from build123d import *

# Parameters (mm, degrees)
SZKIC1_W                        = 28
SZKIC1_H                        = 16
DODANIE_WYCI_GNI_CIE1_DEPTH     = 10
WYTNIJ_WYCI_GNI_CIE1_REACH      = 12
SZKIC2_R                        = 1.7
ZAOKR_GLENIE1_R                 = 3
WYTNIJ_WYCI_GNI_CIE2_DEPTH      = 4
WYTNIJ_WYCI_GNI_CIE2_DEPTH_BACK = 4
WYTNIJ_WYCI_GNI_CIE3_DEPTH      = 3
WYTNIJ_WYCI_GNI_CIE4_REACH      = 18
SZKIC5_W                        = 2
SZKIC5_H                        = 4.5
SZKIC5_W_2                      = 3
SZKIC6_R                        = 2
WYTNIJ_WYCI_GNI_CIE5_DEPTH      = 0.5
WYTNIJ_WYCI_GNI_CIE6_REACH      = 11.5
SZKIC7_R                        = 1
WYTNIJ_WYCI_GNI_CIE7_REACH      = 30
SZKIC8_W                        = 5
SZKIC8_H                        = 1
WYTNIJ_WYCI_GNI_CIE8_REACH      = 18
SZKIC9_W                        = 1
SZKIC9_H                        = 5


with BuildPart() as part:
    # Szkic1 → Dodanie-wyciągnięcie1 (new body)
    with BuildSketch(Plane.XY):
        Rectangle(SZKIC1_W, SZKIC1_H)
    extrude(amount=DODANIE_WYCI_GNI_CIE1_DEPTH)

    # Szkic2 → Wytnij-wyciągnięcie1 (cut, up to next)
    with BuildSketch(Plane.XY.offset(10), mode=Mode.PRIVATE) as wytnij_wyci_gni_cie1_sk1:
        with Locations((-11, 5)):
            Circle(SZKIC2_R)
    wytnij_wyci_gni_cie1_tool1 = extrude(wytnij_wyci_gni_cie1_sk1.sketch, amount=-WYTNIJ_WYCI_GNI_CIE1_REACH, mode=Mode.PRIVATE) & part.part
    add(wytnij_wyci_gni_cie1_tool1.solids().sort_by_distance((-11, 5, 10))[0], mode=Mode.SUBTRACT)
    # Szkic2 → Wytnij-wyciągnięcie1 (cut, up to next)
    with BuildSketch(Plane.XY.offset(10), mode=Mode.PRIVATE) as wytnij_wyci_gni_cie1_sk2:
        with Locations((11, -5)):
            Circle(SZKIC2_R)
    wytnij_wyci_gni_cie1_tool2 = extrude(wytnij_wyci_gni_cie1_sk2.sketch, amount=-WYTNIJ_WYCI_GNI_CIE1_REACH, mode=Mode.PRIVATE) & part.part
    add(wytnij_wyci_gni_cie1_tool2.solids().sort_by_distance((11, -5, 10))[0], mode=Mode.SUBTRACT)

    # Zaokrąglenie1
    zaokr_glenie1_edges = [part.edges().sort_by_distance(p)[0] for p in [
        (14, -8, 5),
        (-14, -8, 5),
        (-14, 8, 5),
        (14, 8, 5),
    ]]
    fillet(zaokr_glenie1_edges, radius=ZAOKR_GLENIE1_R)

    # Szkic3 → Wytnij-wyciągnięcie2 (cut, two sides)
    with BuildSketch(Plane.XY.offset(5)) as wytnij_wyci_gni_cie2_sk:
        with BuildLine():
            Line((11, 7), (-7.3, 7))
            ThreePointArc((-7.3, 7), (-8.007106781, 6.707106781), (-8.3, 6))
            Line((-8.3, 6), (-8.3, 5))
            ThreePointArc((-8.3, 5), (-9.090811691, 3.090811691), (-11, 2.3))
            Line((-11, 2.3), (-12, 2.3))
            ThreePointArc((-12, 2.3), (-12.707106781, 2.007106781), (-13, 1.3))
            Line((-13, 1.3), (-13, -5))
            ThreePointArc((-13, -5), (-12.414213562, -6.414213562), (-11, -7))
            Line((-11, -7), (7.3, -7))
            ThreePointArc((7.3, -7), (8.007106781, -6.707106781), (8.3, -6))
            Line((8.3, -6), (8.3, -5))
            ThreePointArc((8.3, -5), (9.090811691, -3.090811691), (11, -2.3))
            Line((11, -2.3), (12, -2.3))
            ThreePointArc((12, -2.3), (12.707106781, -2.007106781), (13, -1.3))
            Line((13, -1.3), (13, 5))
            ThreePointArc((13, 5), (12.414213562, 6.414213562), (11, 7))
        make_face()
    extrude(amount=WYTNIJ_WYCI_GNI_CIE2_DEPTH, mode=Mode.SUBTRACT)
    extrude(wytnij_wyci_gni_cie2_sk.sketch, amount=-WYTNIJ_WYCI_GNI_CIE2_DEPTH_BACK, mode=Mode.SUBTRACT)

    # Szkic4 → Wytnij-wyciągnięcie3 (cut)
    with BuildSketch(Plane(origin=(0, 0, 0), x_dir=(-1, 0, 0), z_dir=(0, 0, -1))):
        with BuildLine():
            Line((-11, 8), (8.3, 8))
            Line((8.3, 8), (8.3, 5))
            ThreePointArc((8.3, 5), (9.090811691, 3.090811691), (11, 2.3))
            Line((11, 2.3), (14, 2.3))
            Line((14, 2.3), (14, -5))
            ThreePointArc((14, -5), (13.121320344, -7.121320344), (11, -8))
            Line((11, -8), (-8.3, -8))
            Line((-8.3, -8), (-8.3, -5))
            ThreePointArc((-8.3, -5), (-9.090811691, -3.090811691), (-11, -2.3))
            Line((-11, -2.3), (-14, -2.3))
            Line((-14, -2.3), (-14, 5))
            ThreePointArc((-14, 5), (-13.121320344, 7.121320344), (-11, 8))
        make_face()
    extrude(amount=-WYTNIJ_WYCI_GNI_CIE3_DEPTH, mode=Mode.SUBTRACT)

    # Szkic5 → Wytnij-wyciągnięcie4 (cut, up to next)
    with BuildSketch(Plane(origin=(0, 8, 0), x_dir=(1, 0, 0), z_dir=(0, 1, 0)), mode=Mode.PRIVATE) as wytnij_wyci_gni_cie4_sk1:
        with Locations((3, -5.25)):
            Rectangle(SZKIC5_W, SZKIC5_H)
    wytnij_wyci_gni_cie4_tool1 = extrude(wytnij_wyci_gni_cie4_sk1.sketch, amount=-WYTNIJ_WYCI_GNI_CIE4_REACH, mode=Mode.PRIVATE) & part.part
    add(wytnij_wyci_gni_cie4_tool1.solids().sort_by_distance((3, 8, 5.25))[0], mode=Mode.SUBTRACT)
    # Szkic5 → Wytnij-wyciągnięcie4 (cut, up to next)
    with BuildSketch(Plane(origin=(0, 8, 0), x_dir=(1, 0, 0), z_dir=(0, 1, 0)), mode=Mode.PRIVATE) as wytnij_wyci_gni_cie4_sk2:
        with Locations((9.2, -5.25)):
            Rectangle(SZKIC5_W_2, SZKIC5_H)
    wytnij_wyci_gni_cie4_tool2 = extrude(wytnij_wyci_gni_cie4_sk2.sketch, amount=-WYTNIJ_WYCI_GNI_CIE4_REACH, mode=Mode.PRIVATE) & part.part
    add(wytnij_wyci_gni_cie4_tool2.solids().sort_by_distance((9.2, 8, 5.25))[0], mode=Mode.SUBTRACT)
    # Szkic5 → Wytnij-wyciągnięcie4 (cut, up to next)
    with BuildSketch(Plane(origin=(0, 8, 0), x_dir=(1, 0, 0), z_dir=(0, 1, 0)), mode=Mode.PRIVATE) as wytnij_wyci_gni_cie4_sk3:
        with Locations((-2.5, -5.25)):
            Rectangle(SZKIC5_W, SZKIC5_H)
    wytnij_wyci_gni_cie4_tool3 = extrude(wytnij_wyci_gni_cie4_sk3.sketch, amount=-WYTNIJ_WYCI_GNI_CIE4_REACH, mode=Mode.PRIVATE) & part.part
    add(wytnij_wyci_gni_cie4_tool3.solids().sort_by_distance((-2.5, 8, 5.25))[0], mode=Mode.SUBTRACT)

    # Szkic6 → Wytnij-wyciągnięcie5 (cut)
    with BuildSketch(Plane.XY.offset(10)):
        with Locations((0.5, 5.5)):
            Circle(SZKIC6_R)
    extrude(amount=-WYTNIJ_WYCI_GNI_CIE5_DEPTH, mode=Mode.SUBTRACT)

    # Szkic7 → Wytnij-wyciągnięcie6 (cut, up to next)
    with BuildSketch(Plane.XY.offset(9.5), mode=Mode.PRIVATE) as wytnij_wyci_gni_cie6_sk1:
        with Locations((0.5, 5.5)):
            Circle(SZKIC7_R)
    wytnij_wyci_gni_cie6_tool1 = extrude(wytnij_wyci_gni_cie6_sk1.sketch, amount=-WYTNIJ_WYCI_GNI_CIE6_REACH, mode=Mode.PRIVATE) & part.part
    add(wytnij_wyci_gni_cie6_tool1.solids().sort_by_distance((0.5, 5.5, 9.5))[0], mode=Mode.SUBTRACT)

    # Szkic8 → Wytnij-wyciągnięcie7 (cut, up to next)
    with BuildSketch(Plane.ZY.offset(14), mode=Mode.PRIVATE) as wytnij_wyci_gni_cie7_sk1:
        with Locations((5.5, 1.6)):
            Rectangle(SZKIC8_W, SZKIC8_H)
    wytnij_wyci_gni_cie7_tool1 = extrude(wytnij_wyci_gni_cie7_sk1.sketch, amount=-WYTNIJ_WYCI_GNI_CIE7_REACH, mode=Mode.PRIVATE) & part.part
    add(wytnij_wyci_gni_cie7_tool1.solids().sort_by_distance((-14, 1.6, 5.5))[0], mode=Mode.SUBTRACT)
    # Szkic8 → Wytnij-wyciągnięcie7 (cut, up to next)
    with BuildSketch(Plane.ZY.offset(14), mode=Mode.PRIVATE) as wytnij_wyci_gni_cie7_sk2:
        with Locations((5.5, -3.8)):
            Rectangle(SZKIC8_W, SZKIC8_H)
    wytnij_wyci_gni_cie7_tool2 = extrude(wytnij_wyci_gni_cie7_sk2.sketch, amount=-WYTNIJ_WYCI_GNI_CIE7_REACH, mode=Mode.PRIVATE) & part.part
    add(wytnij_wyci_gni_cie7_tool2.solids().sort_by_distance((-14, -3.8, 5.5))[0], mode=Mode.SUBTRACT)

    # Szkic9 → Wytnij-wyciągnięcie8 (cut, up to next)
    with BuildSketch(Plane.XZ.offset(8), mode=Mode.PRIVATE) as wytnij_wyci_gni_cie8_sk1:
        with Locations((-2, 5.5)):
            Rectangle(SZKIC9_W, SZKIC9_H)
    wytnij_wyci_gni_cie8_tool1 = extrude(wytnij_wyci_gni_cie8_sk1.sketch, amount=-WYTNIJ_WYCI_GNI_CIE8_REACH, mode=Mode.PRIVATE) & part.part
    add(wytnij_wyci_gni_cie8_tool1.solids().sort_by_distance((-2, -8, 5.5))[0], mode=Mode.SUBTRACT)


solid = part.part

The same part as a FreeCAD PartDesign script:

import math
import FreeCAD as App
import Part
import Sketcher
from FreeCAD import Vector


def edges_at(feature, points):
    """Names of the edges that pass closest to the given points."""
    edges = feature.Shape.Edges
    near = lambda p: min(range(len(edges)), key=lambda i: edges[i].distToShape(Part.Vertex(*p))[0])
    return sorted({f"Edge{near(p) + 1}" for p in points})


def add_polygon(sketch, points):
    """Adds a closed chain of lines whose ends are joined by coincident constraints."""
    first, n = sketch.GeometryCount, len(points)
    for a, b in zip(points, points[1:] + points[:1]):
        sketch.addGeometry(Part.LineSegment(App.Vector(*a, 0), App.Vector(*b, 0)), False)
    for i in range(n):
        sketch.addConstraint(Sketcher.Constraint("Coincident", first + i, 2, first + (i + 1) % n, 1))

doc = App.newDocument("Part")
body = doc.addObject("PartDesign::Body", "Body")

# Sketch on XY plane
sketch1 = doc.addObject("Sketcher::SketchObject", "Sketch")
body.addObject(sketch1)
sketch1.AttachmentSupport = (doc.XY_Plane, [""])
sketch1.MapMode = "FlatFace"
add_polygon(sketch1, [(-14, 8), (-14, -8), (14, -8), (14, 8)])  # lines 0-3
sketch1.addConstraint(Sketcher.Constraint("Vertical", 0))
sketch1.addConstraint(Sketcher.Constraint("Horizontal", 1))
sketch1.addConstraint(Sketcher.Constraint("Vertical", 2))
sketch1.addConstraint(Sketcher.Constraint("Horizontal", 3))
sketch1.addConstraint(Sketcher.Constraint("Symmetric", 0, 2, 2, 2, -1, 1))
sketch1.addConstraint(Sketcher.Constraint("DistanceX", 1, 1, 1, 2, 28.0))
sketch1.addConstraint(Sketcher.Constraint("DistanceY", 0, 2, 0, 1, 16.0))
pad1 = doc.addObject("PartDesign::Pad", "Pad")
body.addObject(pad1)
pad1.Profile = sketch1
pad1.Length = 10

# Sketch on XY plane
sketch2 = doc.addObject("Sketcher::SketchObject", "Sketch001")
body.addObject(sketch2)
sketch2.AttachmentSupport = (doc.XY_Plane, [""])
sketch2.MapMode = "FlatFace"
sketch2.AttachmentOffset = App.Placement(Vector(0, 0, 10), App.Rotation())
sketch2.addGeometry(Part.Circle(Vector(-11, 5, 0), Vector(0, 0, 1), 1.7), False)
sketch2.addConstraint(Sketcher.Constraint("Diameter", 0, 3.4))
sketch2.addConstraint(Sketcher.Constraint("DistanceX", 0, 3, -1, 1, 11.0))
sketch2.addConstraint(Sketcher.Constraint("DistanceY", -1, 1, 0, 3, 5.0))
pocket1 = doc.addObject("PartDesign::Pocket", "Pocket")
body.addObject(pocket1)
pocket1.Profile = sketch2
pocket1.Type = "UpToFirst"

# Sketch on XY plane
sketch3 = doc.addObject("Sketcher::SketchObject", "Sketch002")
body.addObject(sketch3)
sketch3.AttachmentSupport = (doc.XY_Plane, [""])
sketch3.MapMode = "FlatFace"
sketch3.AttachmentOffset = App.Placement(Vector(0, 0, 10), App.Rotation())
sketch3.addGeometry(Part.Circle(Vector(11, -5, 0), Vector(0, 0, 1), 1.7), False)
sketch3.addConstraint(Sketcher.Constraint("Diameter", 0, 3.4))
sketch3.addConstraint(Sketcher.Constraint("DistanceX", -1, 1, 0, 3, 11.0))
sketch3.addConstraint(Sketcher.Constraint("DistanceY", 0, 3, -1, 1, 5.0))
pocket2 = doc.addObject("PartDesign::Pocket", "Pocket001")
body.addObject(pocket2)
pocket2.Profile = sketch3
pocket2.Type = "UpToFirst"
doc.recompute()

fillet = doc.addObject("PartDesign::Fillet", "Fillet")
body.addObject(fillet)
fillet.Base = (pocket2, edges_at(pocket2, [
    (14, -8, 5),
    (-14, -8, 5),
    (-14, 8, 5),
    (14, 8, 5),
]))
fillet.Radius = 3

# Sketch on XY plane
sketch4 = doc.addObject("Sketcher::SketchObject", "Sketch003")
body.addObject(sketch4)
sketch4.AttachmentSupport = (doc.XY_Plane, [""])
sketch4.MapMode = "FlatFace"
sketch4.AttachmentOffset = App.Placement(Vector(0, 0, 5), App.Rotation())
sketch4.addGeometry(Part.LineSegment(Vector(11, 7, 0), Vector(-7.3, 7, 0)), False)
sketch4.addGeometry(Part.ArcOfCircle(Part.Circle(Vector(-7.3, 6, 0), Vector(0, 0, 1), 1), math.radians(90), math.radians(180)), False)
sketch4.addGeometry(Part.LineSegment(Vector(-8.3, 6, 0), Vector(-8.3, 5, 0)), False)
sketch4.addGeometry(Part.ArcOfCircle(Part.Circle(Vector(-11, 5, 0), Vector(0, 0, 1), 2.7), math.radians(-90), math.radians(0)), False)
sketch4.addGeometry(Part.LineSegment(Vector(-11, 2.3, 0), Vector(-12, 2.3, 0)), False)
sketch4.addGeometry(Part.ArcOfCircle(Part.Circle(Vector(-12, 1.3, 0), Vector(0, 0, 1), 1), math.radians(90), math.radians(180)), False)
sketch4.addGeometry(Part.LineSegment(Vector(-13, 1.3, 0), Vector(-13, -5, 0)), False)
sketch4.addGeometry(Part.ArcOfCircle(Part.Circle(Vector(-11, -5, 0), Vector(0, 0, 1), 2), math.radians(-180), math.radians(-90)), False)
sketch4.addGeometry(Part.LineSegment(Vector(-11, -7, 0), Vector(7.3, -7, 0)), False)
sketch4.addGeometry(Part.ArcOfCircle(Part.Circle(Vector(7.3, -6, 0), Vector(0, 0, 1), 1), math.radians(-90), math.radians(0)), False)
sketch4.addGeometry(Part.LineSegment(Vector(8.3, -6, 0), Vector(8.3, -5, 0)), False)
sketch4.addGeometry(Part.ArcOfCircle(Part.Circle(Vector(11, -5, 0), Vector(0, 0, 1), 2.7), math.radians(90), math.radians(180)), False)
sketch4.addGeometry(Part.LineSegment(Vector(11, -2.3, 0), Vector(12, -2.3, 0)), False)
sketch4.addGeometry(Part.ArcOfCircle(Part.Circle(Vector(12, -1.3, 0), Vector(0, 0, 1), 1), math.radians(-90), math.radians(0)), False)
sketch4.addGeometry(Part.LineSegment(Vector(13, -1.3, 0), Vector(13, 5, 0)), False)
sketch4.addGeometry(Part.ArcOfCircle(Part.Circle(Vector(11, 5, 0), Vector(0, 0, 1), 2), math.radians(0), math.radians(90)), False)
sketch4.addConstraint(Sketcher.Constraint("Tangent", 0, 2, 1, 1))
sketch4.addConstraint(Sketcher.Constraint("Tangent", 1, 2, 2, 1))
sketch4.addConstraint(Sketcher.Constraint("Tangent", 2, 2, 3, 2))
sketch4.addConstraint(Sketcher.Constraint("Tangent", 3, 1, 4, 1))
sketch4.addConstraint(Sketcher.Constraint("Tangent", 4, 2, 5, 1))
sketch4.addConstraint(Sketcher.Constraint("Tangent", 5, 2, 6, 1))
sketch4.addConstraint(Sketcher.Constraint("Tangent", 6, 2, 7, 1))
sketch4.addConstraint(Sketcher.Constraint("Tangent", 7, 2, 8, 1))
sketch4.addConstraint(Sketcher.Constraint("Tangent", 8, 2, 9, 1))
sketch4.addConstraint(Sketcher.Constraint("Tangent", 9, 2, 10, 1))
sketch4.addConstraint(Sketcher.Constraint("Tangent", 10, 2, 11, 2))
sketch4.addConstraint(Sketcher.Constraint("Tangent", 11, 1, 12, 1))
sketch4.addConstraint(Sketcher.Constraint("Tangent", 12, 2, 13, 1))
sketch4.addConstraint(Sketcher.Constraint("Tangent", 13, 2, 14, 1))
sketch4.addConstraint(Sketcher.Constraint("Tangent", 14, 2, 15, 1))
sketch4.addConstraint(Sketcher.Constraint("Tangent", 15, 2, 0, 1))
sketch4.addConstraint(Sketcher.Constraint("Horizontal", 0))
sketch4.addConstraint(Sketcher.Constraint("Vertical", 2))
sketch4.addConstraint(Sketcher.Constraint("Horizontal", 4))
sketch4.addConstraint(Sketcher.Constraint("Vertical", 6))
sketch4.addConstraint(Sketcher.Constraint("Horizontal", 8))
sketch4.addConstraint(Sketcher.Constraint("Vertical", 10))
sketch4.addConstraint(Sketcher.Constraint("Horizontal", 12))
sketch4.addConstraint(Sketcher.Constraint("Vertical", 14))
sketch4.addConstraint(Sketcher.Constraint("Equal", 1, 5))
sketch4.addConstraint(Sketcher.Constraint("Equal", 5, 9))
sketch4.addConstraint(Sketcher.Constraint("Equal", 3, 11))
sketch4.addConstraint(Sketcher.Constraint("Equal", 9, 13))
sketch4.addConstraint(Sketcher.Constraint("Equal", 7, 15))
sketch4.addConstraint(Sketcher.Constraint("Symmetric", 1, 3, 9, 3, -1, 1))
sketch4.addConstraint(Sketcher.Constraint("Symmetric", 5, 3, 13, 3, -1, 1))
sketch4.addConstraint(Sketcher.Constraint("Symmetric", 7, 3, 11, 3, -2))
sketch4.addConstraint(Sketcher.Constraint("Radius", 1, 1.0))
sketch4.addConstraint(Sketcher.Constraint("Radius", 7, 2.0))
sketch4.addConstraint(Sketcher.Constraint("Radius", 3, 2.7))
sketch4.addConstraint(Sketcher.Constraint("DistanceX", 0, 2, 0, 1, 18.3))
sketch4.addConstraint(Sketcher.Constraint("DistanceY", 6, 2, 6, 1, 6.3))
pocket3 = doc.addObject("PartDesign::Pocket", "Pocket002")
body.addObject(pocket3)
pocket3.Profile = sketch4
pocket3.Type = "TwoLengths"
pocket3.Length = 4
pocket3.Length2 = 4
pocket3.Reversed = True

# Sketch on XY plane
sketch5 = doc.addObject("Sketcher::SketchObject", "Sketch004")
body.addObject(sketch5)
sketch5.AttachmentSupport = (doc.XY_Plane, [""])
sketch5.MapMode = "FlatFace"
sketch5.addGeometry(Part.LineSegment(Vector(-8.3, 8, 0), Vector(11, 8, 0)), False)
sketch5.addGeometry(Part.ArcOfCircle(Part.Circle(Vector(11, 5, 0), Vector(0, 0, 1), 3), math.radians(0), math.radians(90)), False)
sketch5.addGeometry(Part.LineSegment(Vector(14, 5, 0), Vector(14, -2.3, 0)), False)
sketch5.addGeometry(Part.LineSegment(Vector(14, -2.3, 0), Vector(11, -2.3, 0)), False)
sketch5.addGeometry(Part.ArcOfCircle(Part.Circle(Vector(11, -5, 0), Vector(0, 0, 1), 2.7), math.radians(90), math.radians(180)), False)
sketch5.addGeometry(Part.LineSegment(Vector(8.3, -5, 0), Vector(8.3, -8, 0)), False)
sketch5.addGeometry(Part.LineSegment(Vector(8.3, -8, 0), Vector(-11, -8, 0)), False)
sketch5.addGeometry(Part.ArcOfCircle(Part.Circle(Vector(-11, -5, 0), Vector(0, 0, 1), 3), math.radians(180), math.radians(270)), False)
sketch5.addGeometry(Part.LineSegment(Vector(-14, -5, 0), Vector(-14, 2.3, 0)), False)
sketch5.addGeometry(Part.LineSegment(Vector(-14, 2.3, 0), Vector(-11, 2.3, 0)), False)
sketch5.addGeometry(Part.ArcOfCircle(Part.Circle(Vector(-11, 5, 0), Vector(0, 0, 1), 2.7), math.radians(-90), math.radians(0)), False)
sketch5.addGeometry(Part.LineSegment(Vector(-8.3, 5, 0), Vector(-8.3, 8, 0)), False)
sketch5.addConstraint(Sketcher.Constraint("Tangent", 0, 2, 1, 2))
sketch5.addConstraint(Sketcher.Constraint("Tangent", 1, 1, 2, 1))
sketch5.addConstraint(Sketcher.Constraint("Coincident", 2, 2, 3, 1))
sketch5.addConstraint(Sketcher.Constraint("Tangent", 3, 2, 4, 1))
sketch5.addConstraint(Sketcher.Constraint("Tangent", 4, 2, 5, 1))
sketch5.addConstraint(Sketcher.Constraint("Coincident", 5, 2, 6, 1))
sketch5.addConstraint(Sketcher.Constraint("Tangent", 6, 2, 7, 2))
sketch5.addConstraint(Sketcher.Constraint("Tangent", 7, 1, 8, 1))
sketch5.addConstraint(Sketcher.Constraint("Coincident", 8, 2, 9, 1))
sketch5.addConstraint(Sketcher.Constraint("Tangent", 9, 2, 10, 1))
sketch5.addConstraint(Sketcher.Constraint("Tangent", 10, 2, 11, 1))
sketch5.addConstraint(Sketcher.Constraint("Coincident", 11, 2, 0, 1))
sketch5.addConstraint(Sketcher.Constraint("Horizontal", 0))
sketch5.addConstraint(Sketcher.Constraint("Vertical", 2))
sketch5.addConstraint(Sketcher.Constraint("Horizontal", 3))
sketch5.addConstraint(Sketcher.Constraint("Vertical", 5))
sketch5.addConstraint(Sketcher.Constraint("Horizontal", 6))
sketch5.addConstraint(Sketcher.Constraint("Vertical", 8))
sketch5.addConstraint(Sketcher.Constraint("Horizontal", 9))
sketch5.addConstraint(Sketcher.Constraint("Vertical", 11))
sketch5.addConstraint(Sketcher.Constraint("Equal", 1, 7))
sketch5.addConstraint(Sketcher.Constraint("Equal", 4, 10))
sketch5.addConstraint(Sketcher.Constraint("Symmetric", 1, 3, 7, 3, -1, 1))
sketch5.addConstraint(Sketcher.Constraint("Symmetric", 4, 3, 10, 3, -1, 1))
sketch5.addConstraint(Sketcher.Constraint("Symmetric", 4, 3, 7, 3, -2))
sketch5.addConstraint(Sketcher.Constraint("Radius", 1, 3.0))
sketch5.addConstraint(Sketcher.Constraint("Radius", 4, 2.7))
sketch5.addConstraint(Sketcher.Constraint("DistanceX", 0, 1, 0, 2, 19.3))
sketch5.addConstraint(Sketcher.Constraint("DistanceY", 2, 2, 2, 1, 7.3))
pocket4 = doc.addObject("PartDesign::Pocket", "Pocket003")
body.addObject(pocket4)
pocket4.Profile = sketch5
pocket4.Length = 3
pocket4.Reversed = True

# Sketch on XZ plane
sketch6 = doc.addObject("Sketcher::SketchObject", "Sketch005")
body.addObject(sketch6)
sketch6.AttachmentSupport = (doc.XZ_Plane, [""])
sketch6.MapMode = "FlatFace"
sketch6.AttachmentOffset = App.Placement(Vector(0, 0, -8), App.Rotation())
add_polygon(sketch6, [(2, 3), (2, 7.5), (4, 7.5), (4, 3)])  # lines 0-3
sketch6.addConstraint(Sketcher.Constraint("Vertical", 0))
sketch6.addConstraint(Sketcher.Constraint("Horizontal", 1))
sketch6.addConstraint(Sketcher.Constraint("Vertical", 2))
sketch6.addConstraint(Sketcher.Constraint("Horizontal", 3))
sketch6.addConstraint(Sketcher.Constraint("DistanceX", 1, 1, 1, 2, 2.0))
sketch6.addConstraint(Sketcher.Constraint("DistanceY", 0, 1, 0, 2, 4.5))
sketch6.addConstraint(Sketcher.Constraint("DistanceX", -1, 1, 0, 2, 2.0))
sketch6.addConstraint(Sketcher.Constraint("DistanceY", -1, 1, 2, 2, 3.0))
pocket5 = doc.addObject("PartDesign::Pocket", "Pocket004")
body.addObject(pocket5)
pocket5.Profile = sketch6
pocket5.Type = "UpToFirst"
pocket5.Reversed = True

# Sketch on XZ plane
sketch7 = doc.addObject("Sketcher::SketchObject", "Sketch006")
body.addObject(sketch7)
sketch7.AttachmentSupport = (doc.XZ_Plane, [""])
sketch7.MapMode = "FlatFace"
sketch7.AttachmentOffset = App.Placement(Vector(0, 0, -8), App.Rotation())
add_polygon(sketch7, [(7.7, 3), (7.7, 7.5), (10.7, 7.5), (10.7, 3)])  # lines 0-3
sketch7.addConstraint(Sketcher.Constraint("Vertical", 0))
sketch7.addConstraint(Sketcher.Constraint("Horizontal", 1))
sketch7.addConstraint(Sketcher.Constraint("Vertical", 2))
sketch7.addConstraint(Sketcher.Constraint("Horizontal", 3))
sketch7.addConstraint(Sketcher.Constraint("DistanceX", 1, 1, 1, 2, 3.0))
sketch7.addConstraint(Sketcher.Constraint("DistanceY", 0, 1, 0, 2, 4.5))
sketch7.addConstraint(Sketcher.Constraint("DistanceY", -1, 1, 2, 2, 3.0))
sketch7.addConstraint(Sketcher.Constraint("DistanceX", -1, 1, 0, 2, 7.7))
pocket6 = doc.addObject("PartDesign::Pocket", "Pocket005")
body.addObject(pocket6)
pocket6.Profile = sketch7
pocket6.Type = "UpToFirst"
pocket6.Reversed = True

# Sketch on XZ plane
sketch8 = doc.addObject("Sketcher::SketchObject", "Sketch007")
body.addObject(sketch8)
sketch8.AttachmentSupport = (doc.XZ_Plane, [""])
sketch8.MapMode = "FlatFace"
sketch8.AttachmentOffset = App.Placement(Vector(0, 0, -8), App.Rotation())
add_polygon(sketch8, [(-3.5, 3), (-3.5, 7.5), (-1.5, 7.5), (-1.5, 3)])  # lines 0-3
sketch8.addConstraint(Sketcher.Constraint("Vertical", 0))
sketch8.addConstraint(Sketcher.Constraint("Horizontal", 1))
sketch8.addConstraint(Sketcher.Constraint("Vertical", 2))
sketch8.addConstraint(Sketcher.Constraint("Horizontal", 3))
sketch8.addConstraint(Sketcher.Constraint("DistanceX", 1, 1, 1, 2, 2.0))
sketch8.addConstraint(Sketcher.Constraint("DistanceY", 0, 1, 0, 2, 4.5))
sketch8.addConstraint(Sketcher.Constraint("DistanceY", -1, 1, 2, 2, 3.0))
sketch8.addConstraint(Sketcher.Constraint("DistanceX", 0, 2, -1, 1, 3.5))
pocket7 = doc.addObject("PartDesign::Pocket", "Pocket006")
body.addObject(pocket7)
pocket7.Profile = sketch8
pocket7.Type = "UpToFirst"
pocket7.Reversed = True

# Sketch on XY plane
sketch9 = doc.addObject("Sketcher::SketchObject", "Sketch008")
body.addObject(sketch9)
sketch9.AttachmentSupport = (doc.XY_Plane, [""])
sketch9.MapMode = "FlatFace"
sketch9.AttachmentOffset = App.Placement(Vector(0, 0, 10), App.Rotation())
sketch9.addGeometry(Part.Circle(Vector(0.5, 5.5, 0), Vector(0, 0, 1), 2), False)
sketch9.addConstraint(Sketcher.Constraint("Diameter", 0, 4.0))
sketch9.addConstraint(Sketcher.Constraint("DistanceX", -1, 1, 0, 3, 0.5))
sketch9.addConstraint(Sketcher.Constraint("DistanceY", -1, 1, 0, 3, 5.5))
pocket8 = doc.addObject("PartDesign::Pocket", "Pocket007")
body.addObject(pocket8)
pocket8.Profile = sketch9
pocket8.Length = 0.5

# Sketch on XY plane
sketch10 = doc.addObject("Sketcher::SketchObject", "Sketch009")
body.addObject(sketch10)
sketch10.AttachmentSupport = (doc.XY_Plane, [""])
sketch10.MapMode = "FlatFace"
sketch10.AttachmentOffset = App.Placement(Vector(0, 0, 9.5), App.Rotation())
sketch10.addGeometry(Part.Circle(Vector(0.5, 5.5, 0), Vector(0, 0, 1), 1), False)
sketch10.addConstraint(Sketcher.Constraint("Diameter", 0, 2.0))
sketch10.addConstraint(Sketcher.Constraint("DistanceX", -1, 1, 0, 3, 0.5))
sketch10.addConstraint(Sketcher.Constraint("DistanceY", -1, 1, 0, 3, 5.5))
pocket9 = doc.addObject("PartDesign::Pocket", "Pocket008")
body.addObject(pocket9)
pocket9.Profile = sketch10
pocket9.Type = "UpToFirst"

# Sketch on YZ plane
sketch11 = doc.addObject("Sketcher::SketchObject", "Sketch010")
body.addObject(sketch11)
sketch11.AttachmentSupport = (doc.YZ_Plane, [""])
sketch11.MapMode = "FlatFace"
sketch11.AttachmentOffset = App.Placement(Vector(0, 0, -14), App.Rotation())
add_polygon(sketch11, [(2.1, 3), (1.1, 3), (1.1, 8), (2.1, 8)])  # lines 0-3
sketch11.addConstraint(Sketcher.Constraint("Horizontal", 0))
sketch11.addConstraint(Sketcher.Constraint("Vertical", 1))
sketch11.addConstraint(Sketcher.Constraint("Horizontal", 2))
sketch11.addConstraint(Sketcher.Constraint("Vertical", 3))
sketch11.addConstraint(Sketcher.Constraint("DistanceX", 0, 2, 0, 1, 1.0))
sketch11.addConstraint(Sketcher.Constraint("DistanceY", 1, 1, 1, 2, 5.0))
sketch11.addConstraint(Sketcher.Constraint("DistanceY", -1, 1, 0, 2, 3.0))
sketch11.addConstraint(Sketcher.Constraint("DistanceX", -1, 1, 0, 2, 1.1))
pocket10 = doc.addObject("PartDesign::Pocket", "Pocket009")
body.addObject(pocket10)
pocket10.Profile = sketch11
pocket10.Length = 1.4
pocket10.Reversed = True

# Sketch on YZ plane
sketch12 = doc.addObject("Sketcher::SketchObject", "Sketch011")
body.addObject(sketch12)
sketch12.AttachmentSupport = (doc.YZ_Plane, [""])
sketch12.MapMode = "FlatFace"
sketch12.AttachmentOffset = App.Placement(Vector(0, 0, -14), App.Rotation())
add_polygon(sketch12, [(-3.3, 3), (-4.3, 3), (-4.3, 8), (-3.3, 8)])  # lines 0-3
sketch12.addConstraint(Sketcher.Constraint("Horizontal", 0))
sketch12.addConstraint(Sketcher.Constraint("Vertical", 1))
sketch12.addConstraint(Sketcher.Constraint("Horizontal", 2))
sketch12.addConstraint(Sketcher.Constraint("Vertical", 3))
sketch12.addConstraint(Sketcher.Constraint("DistanceX", 0, 2, 0, 1, 1.0))
sketch12.addConstraint(Sketcher.Constraint("DistanceY", 1, 1, 1, 2, 5.0))
sketch12.addConstraint(Sketcher.Constraint("DistanceY", -1, 1, 0, 2, 3.0))
sketch12.addConstraint(Sketcher.Constraint("DistanceX", 0, 2, -1, 1, 4.3))
pocket11 = doc.addObject("PartDesign::Pocket", "Pocket010")
body.addObject(pocket11)
pocket11.Profile = sketch12
pocket11.Type = "UpToFirst"
pocket11.Reversed = True

# Sketch on XZ plane
sketch13 = doc.addObject("Sketcher::SketchObject", "Sketch012")
body.addObject(sketch13)
sketch13.AttachmentSupport = (doc.XZ_Plane, [""])
sketch13.MapMode = "FlatFace"
sketch13.AttachmentOffset = App.Placement(Vector(0, 0, 8), App.Rotation())
add_polygon(sketch13, [(-2.5, 8), (-2.5, 3), (-1.5, 3), (-1.5, 8)])  # lines 0-3
sketch13.addConstraint(Sketcher.Constraint("Vertical", 0))
sketch13.addConstraint(Sketcher.Constraint("Horizontal", 1))
sketch13.addConstraint(Sketcher.Constraint("Vertical", 2))
sketch13.addConstraint(Sketcher.Constraint("Horizontal", 3))
sketch13.addConstraint(Sketcher.Constraint("DistanceX", 1, 1, 1, 2, 1.0))
sketch13.addConstraint(Sketcher.Constraint("DistanceY", 0, 2, 0, 1, 5.0))
sketch13.addConstraint(Sketcher.Constraint("DistanceY", -1, 1, 0, 2, 3.0))
sketch13.addConstraint(Sketcher.Constraint("DistanceX", 0, 2, -1, 1, 2.5))
pocket12 = doc.addObject("PartDesign::Pocket", "Pocket011")
body.addObject(pocket12)
pocket12.Profile = sketch13
pocket12.Type = "UpToFirst"

doc.recompute()
